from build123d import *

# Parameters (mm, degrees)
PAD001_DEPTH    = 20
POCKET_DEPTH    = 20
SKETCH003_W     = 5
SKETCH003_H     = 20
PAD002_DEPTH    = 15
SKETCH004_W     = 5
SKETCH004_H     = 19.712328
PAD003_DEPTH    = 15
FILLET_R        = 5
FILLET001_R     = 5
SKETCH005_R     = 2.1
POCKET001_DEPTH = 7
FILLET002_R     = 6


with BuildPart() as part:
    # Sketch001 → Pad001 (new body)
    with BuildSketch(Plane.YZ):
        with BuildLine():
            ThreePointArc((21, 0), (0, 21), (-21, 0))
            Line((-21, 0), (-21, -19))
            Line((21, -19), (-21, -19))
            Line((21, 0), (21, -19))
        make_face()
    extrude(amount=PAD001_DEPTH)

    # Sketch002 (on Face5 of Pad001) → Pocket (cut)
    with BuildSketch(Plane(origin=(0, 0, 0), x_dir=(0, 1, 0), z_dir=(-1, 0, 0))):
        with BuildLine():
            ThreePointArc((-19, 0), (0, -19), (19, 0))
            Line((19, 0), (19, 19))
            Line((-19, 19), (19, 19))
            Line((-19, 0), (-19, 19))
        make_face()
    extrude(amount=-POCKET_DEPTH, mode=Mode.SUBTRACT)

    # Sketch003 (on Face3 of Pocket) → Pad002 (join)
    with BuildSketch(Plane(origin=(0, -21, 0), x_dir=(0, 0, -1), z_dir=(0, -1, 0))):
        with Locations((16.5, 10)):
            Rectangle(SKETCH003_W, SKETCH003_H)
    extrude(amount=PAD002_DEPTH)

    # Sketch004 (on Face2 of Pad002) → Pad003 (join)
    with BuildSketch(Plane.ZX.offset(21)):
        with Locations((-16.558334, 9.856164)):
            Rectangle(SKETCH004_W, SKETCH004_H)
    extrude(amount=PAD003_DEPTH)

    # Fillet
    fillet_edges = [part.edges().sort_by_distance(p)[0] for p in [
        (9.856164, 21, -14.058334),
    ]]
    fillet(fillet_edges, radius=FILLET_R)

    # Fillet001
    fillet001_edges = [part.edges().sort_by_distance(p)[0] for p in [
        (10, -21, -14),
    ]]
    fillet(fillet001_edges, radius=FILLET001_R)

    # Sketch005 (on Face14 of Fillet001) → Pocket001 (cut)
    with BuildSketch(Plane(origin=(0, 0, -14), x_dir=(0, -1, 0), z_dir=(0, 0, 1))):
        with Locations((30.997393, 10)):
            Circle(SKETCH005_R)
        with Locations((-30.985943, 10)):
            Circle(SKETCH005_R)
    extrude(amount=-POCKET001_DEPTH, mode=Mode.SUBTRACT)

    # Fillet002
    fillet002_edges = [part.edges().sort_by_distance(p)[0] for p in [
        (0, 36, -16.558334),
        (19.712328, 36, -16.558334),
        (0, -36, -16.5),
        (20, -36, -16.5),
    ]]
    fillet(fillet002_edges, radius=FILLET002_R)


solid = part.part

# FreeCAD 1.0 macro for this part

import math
import FreeCAD as App
import Part
import Sketcher

V = App.Vector


def edges_at(feature, points):
    """Names of the edges that pass closest to the given points."""
    edges = feature.Shape.Edges
    near = lambda p: min(range(len(edges)), key=lambda i: edges[i].distToShape(Part.Vertex(*p))[0])
    return sorted({f"Edge{near(p) + 1}" for p in points})

doc = App.newDocument("Part")
body = doc.addObject("PartDesign::Body", "Body")

# Sketch on YZ plane
sketch1 = doc.addObject("Sketcher::SketchObject", "Sketch")
body.addObject(sketch1)
sketch1.AttachmentSupport = (doc.YZ_Plane, [""])
sketch1.MapMode = "FlatFace"
sketch1.addGeometry(Part.ArcOfCircle(Part.Circle(V(0, 0, 0), V(0, 0, 1), 21), math.radians(0), math.radians(180)), False)
sketch1.addGeometry(Part.LineSegment(V(-21, 0, 0), V(-21, -19, 0)), False)
sketch1.addGeometry(Part.LineSegment(V(-21, -19, 0), V(21, -19, 0)), False)
sketch1.addGeometry(Part.LineSegment(V(21, -19, 0), V(21, 0, 0)), False)
sketch1.addConstraint(Sketcher.Constraint("Tangent", 0, 2, 1, 1))
sketch1.addConstraint(Sketcher.Constraint("Coincident", 1, 2, 2, 1))
sketch1.addConstraint(Sketcher.Constraint("Coincident", 2, 2, 3, 1))
sketch1.addConstraint(Sketcher.Constraint("Tangent", 3, 2, 0, 1))
sketch1.addConstraint(Sketcher.Constraint("Vertical", 1))
sketch1.addConstraint(Sketcher.Constraint("Horizontal", 2))
sketch1.addConstraint(Sketcher.Constraint("Vertical", 3))
sketch1.addConstraint(Sketcher.Constraint("Coincident", 0, 3, -1, 1))
sketch1.addConstraint(Sketcher.Constraint("Radius", 0, 21.0))
sketch1.addConstraint(Sketcher.Constraint("DistanceY", 1, 2, 1, 1, 19.0))
pad1 = doc.addObject("PartDesign::Pad", "Pad")
body.addObject(pad1)
pad1.Profile = sketch1
pad1.Length = 20

# Sketch on YZ plane
sketch2 = doc.addObject("Sketcher::SketchObject", "Sketch001")
body.addObject(sketch2)
sketch2.AttachmentSupport = (doc.YZ_Plane, [""])
sketch2.MapMode = "FlatFace"
sketch2.addGeometry(Part.ArcOfCircle(Part.Circle(V(0, 0, 0), V(0, 0, 1), 19), math.radians(0), math.radians(180)), False)
sketch2.addGeometry(Part.LineSegment(V(19, 0, 0), V(19, -19, 0)), False)
sketch2.addGeometry(Part.LineSegment(V(19, -19, 0), V(-19, -19, 0)), False)
sketch2.addGeometry(Part.LineSegment(V(-19, -19, 0), V(-19, 0, 0)), False)
sketch2.addConstraint(Sketcher.Constraint("Tangent", 0, 1, 1, 1))
sketch2.addConstraint(Sketcher.Constraint("Coincident", 1, 2, 2, 1))
sketch2.addConstraint(Sketcher.Constraint("Coincident", 2, 2, 3, 1))
sketch2.addConstraint(Sketcher.Constraint("Tangent", 3, 2, 0, 2))
sketch2.addConstraint(Sketcher.Constraint("Vertical", 1))
sketch2.addConstraint(Sketcher.Constraint("Horizontal", 2))
sketch2.addConstraint(Sketcher.Constraint("Vertical", 3))
sketch2.addConstraint(Sketcher.Constraint("Coincident", 0, 3, -1, 1))
sketch2.addConstraint(Sketcher.Constraint("Radius", 0, 19.0))
sketch2.addConstraint(Sketcher.Constraint("DistanceY", 1, 2, 1, 1, 19.0))
pocket1 = doc.addObject("PartDesign::Pocket", "Pocket")
body.addObject(pocket1)
pocket1.Profile = sketch2
pocket1.Length = 20
pocket1.Reversed = True

# Sketch on XZ plane
sketch3 = doc.addObject("Sketcher::SketchObject", "Sketch002")
body.addObject(sketch3)
sketch3.AttachmentSupport = (doc.XZ_Plane, [""])
sketch3.MapMode = "FlatFace"
sketch3.AttachmentOffset = App.Placement(V(0, 0, 21), App.Rotation())
sketch3.addGeometry(Part.LineSegment(V(20, -14, 0), V(0, -14, 0)), False)
sketch3.addGeometry(Part.LineSegment(V(0, -14, 0), V(0, -19, 0)), False)
sketch3.addGeometry(Part.LineSegment(V(0, -19, 0), V(20, -19, 0)), False)
sketch3.addGeometry(Part.LineSegment(V(20, -19, 0), V(20, -14, 0)), False)
sketch3.addConstraint(Sketcher.Constraint("Coincident", 0, 2, 1, 1))
sketch3.addConstraint(Sketcher.Constraint("Coincident", 1, 2, 2, 1))
sketch3.addConstraint(Sketcher.Constraint("Coincident", 2, 2, 3, 1))
sketch3.addConstraint(Sketcher.Constraint("Coincident", 3, 2, 0, 1))
sketch3.addConstraint(Sketcher.Constraint("Horizontal", 0))
sketch3.addConstraint(Sketcher.Constraint("Vertical", 1))
sketch3.addConstraint(Sketcher.Constraint("Horizontal", 2))
sketch3.addConstraint(Sketcher.Constraint("Vertical", 3))
sketch3.addConstraint(Sketcher.Constraint("PointOnObject", 0, 2, -2))
sketch3.addConstraint(Sketcher.Constraint("DistanceX", 0, 2, 0, 1, 20.0))
sketch3.addConstraint(Sketcher.Constraint("DistanceY", 1, 2, 1, 1, 5.0))
sketch3.addConstraint(Sketcher.Constraint("DistanceY", 0, 2, -1, 1, 14.0))
pad2 = doc.addObject("PartDesign::Pad", "Pad001")
body.addObject(pad2)
pad2.Profile = sketch3
pad2.Length = 15

# Sketch on XZ plane
sketch4 = doc.addObject("Sketcher::SketchObject", "Sketch003")
body.addObject(sketch4)
sketch4.AttachmentSupport = (doc.XZ_Plane, [""])
sketch4.MapMode = "FlatFace"
sketch4.AttachmentOffset = App.Placement(V(0, 0, -21), App.Rotation())
sketch4.addGeometry(Part.LineSegment(V(19.7, -19.1, 0), V(0, -19.1, 0)), False)
sketch4.addGeometry(Part.LineSegment(V(0, -19.1, 0), V(0, -14.1, 0)), False)
sketch4.addGeometry(Part.LineSegment(V(0, -14.1, 0), V(19.7, -14.1, 0)), False)
sketch4.addGeometry(Part.LineSegment(V(19.7, -14.1, 0), V(19.7, -19.1, 0)), False)
sketch4.addConstraint(Sketcher.Constraint("Coincident", 0, 2, 1, 1))
sketch4.addConstraint(Sketcher.Constraint("Coincident", 1, 2, 2, 1))
sketch4.addConstraint(Sketcher.Constraint("Coincident", 2, 2, 3, 1))
sketch4.addConstraint(Sketcher.Constraint("Coincident", 3, 2, 0, 1))
sketch4.addConstraint(Sketcher.Constraint("Horizontal", 0))
sketch4.addConstraint(Sketcher.Constraint("Vertical", 1))
sketch4.addConstraint(Sketcher.Constraint("Horizontal", 2))
sketch4.addConstraint(Sketcher.Constraint("Vertical", 3))
sketch4.addConstraint(Sketcher.Constraint("PointOnObject", 0, 2, -2))
sketch4.addConstraint(Sketcher.Constraint("DistanceY", 1, 1, 1, 2, 5.0))
sketch4.addConstraint(Sketcher.Constraint("DistanceX", 0, 2, 0, 1, 19.712328))
sketch4.addConstraint(Sketcher.Constraint("DistanceY", 0, 2, -1, 1, 19.058334))
pad3 = doc.addObject("PartDesign::Pad", "Pad002")
body.addObject(pad3)
pad3.Profile = sketch4
pad3.Length = 15
pad3.Reversed = True
doc.recompute()

fillet = doc.addObject("PartDesign::Fillet", "Fillet")
body.addObject(fillet)
fillet.Base = (pad3, edges_at(pad3, [(9.856, 21, -14.058)]))
fillet.Radius = 5
doc.recompute()

fillet2 = doc.addObject("PartDesign::Fillet", "Fillet001")
body.addObject(fillet2)
fillet2.Base = (fillet, edges_at(fillet, [(10, -21, -14)]))
fillet2.Radius = 5

# Sketch on XY plane
sketch5 = doc.addObject("Sketcher::SketchObject", "Sketch004")
body.addObject(sketch5)
sketch5.AttachmentSupport = (doc.XY_Plane, [""])
sketch5.MapMode = "FlatFace"
sketch5.AttachmentOffset = App.Placement(V(0, 0, -14), App.Rotation())
sketch5.addGeometry(Part.Circle(V(10, -31, 0), V(0, 0, 1), 2.1), False)
sketch5.addGeometry(Part.Circle(V(10, 31, 0), V(0, 0, 1), 2.1), False)
sketch5.addConstraint(Sketcher.Constraint("Equal", 0, 1))
sketch5.addConstraint(Sketcher.Constraint("Vertical", 0, 3, 1, 3))
sketch5.addConstraint(Sketcher.Constraint("Diameter", 0, 4.2))
sketch5.addConstraint(Sketcher.Constraint("DistanceX", -1, 1, 0, 3, 10.0))
sketch5.addConstraint(Sketcher.Constraint("DistanceY", 0, 3, -1, 1, 30.997393))
sketch5.addConstraint(Sketcher.Constraint("DistanceY", -1, 1, 1, 3, 30.985943))
pocket2 = doc.addObject("PartDesign::Pocket", "Pocket001")
body.addObject(pocket2)
pocket2.Profile = sketch5
pocket2.Length = 7
doc.recompute()

fillet3 = doc.addObject("PartDesign::Fillet", "Fillet002")
body.addObject(fillet3)
fillet3.Base = (pocket2, edges_at(pocket2, [
    (0, 36, -16.558),
    (19.712, 36, -16.558),
    (0, -36, -16.5),
    (20, -36, -16.5),
]))
fillet3.Radius = 6

doc.recompute()
